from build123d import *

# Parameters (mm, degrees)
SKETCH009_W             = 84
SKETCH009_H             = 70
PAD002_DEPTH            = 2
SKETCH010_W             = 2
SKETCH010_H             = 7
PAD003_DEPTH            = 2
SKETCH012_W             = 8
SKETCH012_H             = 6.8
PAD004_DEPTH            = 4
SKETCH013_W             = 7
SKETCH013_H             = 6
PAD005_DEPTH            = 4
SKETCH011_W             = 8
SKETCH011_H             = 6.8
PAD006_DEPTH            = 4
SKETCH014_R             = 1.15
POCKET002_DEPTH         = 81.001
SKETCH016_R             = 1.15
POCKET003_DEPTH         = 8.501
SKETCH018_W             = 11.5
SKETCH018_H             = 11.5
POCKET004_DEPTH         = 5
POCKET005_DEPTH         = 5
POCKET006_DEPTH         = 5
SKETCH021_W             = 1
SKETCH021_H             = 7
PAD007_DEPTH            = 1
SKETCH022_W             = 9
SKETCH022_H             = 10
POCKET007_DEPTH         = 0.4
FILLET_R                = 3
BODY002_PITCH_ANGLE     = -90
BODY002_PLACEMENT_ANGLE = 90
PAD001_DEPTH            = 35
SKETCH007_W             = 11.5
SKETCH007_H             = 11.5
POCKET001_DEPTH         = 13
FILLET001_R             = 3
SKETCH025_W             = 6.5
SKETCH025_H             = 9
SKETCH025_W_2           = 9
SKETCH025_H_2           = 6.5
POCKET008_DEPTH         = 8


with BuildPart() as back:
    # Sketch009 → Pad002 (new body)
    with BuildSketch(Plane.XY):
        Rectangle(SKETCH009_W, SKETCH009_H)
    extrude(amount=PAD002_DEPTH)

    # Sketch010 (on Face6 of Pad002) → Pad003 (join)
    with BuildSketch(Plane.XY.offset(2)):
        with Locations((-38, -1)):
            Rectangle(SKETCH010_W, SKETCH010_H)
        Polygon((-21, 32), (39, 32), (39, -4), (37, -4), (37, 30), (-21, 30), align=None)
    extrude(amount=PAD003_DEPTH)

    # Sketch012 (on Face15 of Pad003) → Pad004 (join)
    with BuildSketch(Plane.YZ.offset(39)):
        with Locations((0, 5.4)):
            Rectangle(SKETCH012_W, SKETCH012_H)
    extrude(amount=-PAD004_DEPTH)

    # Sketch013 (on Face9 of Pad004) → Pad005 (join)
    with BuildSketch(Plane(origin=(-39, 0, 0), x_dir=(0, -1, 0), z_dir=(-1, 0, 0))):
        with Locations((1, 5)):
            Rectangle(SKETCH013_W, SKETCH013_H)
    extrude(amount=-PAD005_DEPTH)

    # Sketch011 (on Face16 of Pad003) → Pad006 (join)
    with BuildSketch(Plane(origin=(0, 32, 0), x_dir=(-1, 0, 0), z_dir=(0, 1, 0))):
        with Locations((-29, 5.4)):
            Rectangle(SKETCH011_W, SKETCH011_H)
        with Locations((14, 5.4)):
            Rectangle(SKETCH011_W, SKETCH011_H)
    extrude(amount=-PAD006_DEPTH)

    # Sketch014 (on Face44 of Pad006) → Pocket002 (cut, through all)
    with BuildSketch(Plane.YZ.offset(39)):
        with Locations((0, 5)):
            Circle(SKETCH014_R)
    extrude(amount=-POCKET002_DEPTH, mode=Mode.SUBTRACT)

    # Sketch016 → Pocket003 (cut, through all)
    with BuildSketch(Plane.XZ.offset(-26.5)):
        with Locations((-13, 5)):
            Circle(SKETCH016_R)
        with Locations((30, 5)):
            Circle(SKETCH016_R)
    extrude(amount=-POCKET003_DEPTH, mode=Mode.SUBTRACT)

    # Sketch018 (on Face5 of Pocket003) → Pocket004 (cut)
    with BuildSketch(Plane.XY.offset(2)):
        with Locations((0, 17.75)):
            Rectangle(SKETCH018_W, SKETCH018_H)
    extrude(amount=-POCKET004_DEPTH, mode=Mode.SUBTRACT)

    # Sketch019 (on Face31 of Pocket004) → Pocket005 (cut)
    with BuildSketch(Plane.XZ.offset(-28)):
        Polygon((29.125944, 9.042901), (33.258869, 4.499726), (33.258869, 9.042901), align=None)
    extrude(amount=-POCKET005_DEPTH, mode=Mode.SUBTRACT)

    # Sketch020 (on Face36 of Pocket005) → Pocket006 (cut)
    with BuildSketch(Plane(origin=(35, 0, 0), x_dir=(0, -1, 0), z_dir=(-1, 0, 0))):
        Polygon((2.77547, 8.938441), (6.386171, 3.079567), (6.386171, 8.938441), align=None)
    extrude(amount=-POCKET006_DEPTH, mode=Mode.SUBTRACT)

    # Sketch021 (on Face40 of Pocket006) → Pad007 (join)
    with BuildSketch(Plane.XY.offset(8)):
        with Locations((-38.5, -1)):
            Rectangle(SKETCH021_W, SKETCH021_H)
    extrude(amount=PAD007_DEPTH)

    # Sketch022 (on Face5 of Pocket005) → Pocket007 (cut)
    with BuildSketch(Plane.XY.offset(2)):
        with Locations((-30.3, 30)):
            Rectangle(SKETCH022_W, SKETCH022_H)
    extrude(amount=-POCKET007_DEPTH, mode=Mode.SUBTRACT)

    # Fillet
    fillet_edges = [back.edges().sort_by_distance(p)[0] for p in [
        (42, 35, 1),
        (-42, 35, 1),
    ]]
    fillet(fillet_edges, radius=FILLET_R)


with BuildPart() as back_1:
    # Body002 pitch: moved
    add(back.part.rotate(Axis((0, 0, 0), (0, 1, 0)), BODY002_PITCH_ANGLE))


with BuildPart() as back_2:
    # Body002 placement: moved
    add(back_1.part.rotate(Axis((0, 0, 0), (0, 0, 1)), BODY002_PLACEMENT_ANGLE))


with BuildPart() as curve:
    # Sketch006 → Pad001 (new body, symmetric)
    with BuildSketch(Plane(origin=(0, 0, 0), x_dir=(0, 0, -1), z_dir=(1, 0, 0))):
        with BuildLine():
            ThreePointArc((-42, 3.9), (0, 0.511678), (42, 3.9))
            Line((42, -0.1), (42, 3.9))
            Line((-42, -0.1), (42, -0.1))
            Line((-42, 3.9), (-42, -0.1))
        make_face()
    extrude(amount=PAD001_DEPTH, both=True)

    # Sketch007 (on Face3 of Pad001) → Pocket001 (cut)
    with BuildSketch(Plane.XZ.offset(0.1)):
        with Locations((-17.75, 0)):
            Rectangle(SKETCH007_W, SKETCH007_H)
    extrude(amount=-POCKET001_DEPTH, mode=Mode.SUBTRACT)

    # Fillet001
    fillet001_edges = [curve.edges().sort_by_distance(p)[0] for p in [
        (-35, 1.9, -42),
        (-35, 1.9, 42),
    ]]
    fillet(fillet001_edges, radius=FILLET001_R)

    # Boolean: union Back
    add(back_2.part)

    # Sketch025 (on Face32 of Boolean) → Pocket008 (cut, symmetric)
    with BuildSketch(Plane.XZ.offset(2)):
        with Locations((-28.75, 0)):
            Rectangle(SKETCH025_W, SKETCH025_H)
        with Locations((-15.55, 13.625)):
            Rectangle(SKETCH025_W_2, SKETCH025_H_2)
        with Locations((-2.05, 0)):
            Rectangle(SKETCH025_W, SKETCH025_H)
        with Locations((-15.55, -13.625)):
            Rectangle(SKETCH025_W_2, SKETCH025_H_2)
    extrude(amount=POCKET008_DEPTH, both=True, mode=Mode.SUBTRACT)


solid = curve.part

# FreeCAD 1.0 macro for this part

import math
import FreeCAD as App
import Part
import Sketcher

V = App.Vector


def edges_at(feature, points):
    """Names of the edges that pass closest to the given points."""
    edges = feature.Shape.Edges
    near = lambda p: min(range(len(edges)), key=lambda i: edges[i].distToShape(Part.Vertex(*p))[0])
    return sorted({f"Edge{near(p) + 1}" for p in points})

doc = App.newDocument("Part")
body = doc.addObject("PartDesign::Body", "Body")

sketch1 = body.newObject("Sketcher::SketchObject", "Sketch")
sketch1.AttachmentSupport = (doc.getObject("XY_Plane"), [""])
sketch1.MapMode = "FlatFace"
sketch1.addGeometry(Part.LineSegment(V(-42, 35, 0), V(-42, -35, 0)), False)
sketch1.addGeometry(Part.LineSegment(V(-42, -35, 0), V(42, -35, 0)), False)
sketch1.addGeometry(Part.LineSegment(V(42, -35, 0), V(42, 35, 0)), False)
sketch1.addGeometry(Part.LineSegment(V(42, 35, 0), V(-42, 35, 0)), False)
sketch1.addConstraint(Sketcher.Constraint("Coincident", 0, 2, 1, 1))
sketch1.addConstraint(Sketcher.Constraint("Coincident", 1, 2, 2, 1))
sketch1.addConstraint(Sketcher.Constraint("Coincident", 2, 2, 3, 1))
sketch1.addConstraint(Sketcher.Constraint("Coincident", 3, 2, 0, 1))
sketch1.addConstraint(Sketcher.Constraint("Vertical", 0))
sketch1.addConstraint(Sketcher.Constraint("Horizontal", 1))
sketch1.addConstraint(Sketcher.Constraint("Vertical", 2))
sketch1.addConstraint(Sketcher.Constraint("Horizontal", 3))
sketch1.addConstraint(Sketcher.Constraint("Symmetric", 0, 2, 2, 2, -1, 1))
sketch1.addConstraint(Sketcher.Constraint("DistanceX", 1, 1, 1, 2, 84.0))
sketch1.addConstraint(Sketcher.Constraint("DistanceY", 0, 2, 0, 1, 70.0))
pad1 = body.newObject("PartDesign::Pad", "Pad")
pad1.Profile = sketch1
pad1.Length = 2

sketch2 = body.newObject("Sketcher::SketchObject", "Sketch001")
sketch2.AttachmentSupport = (doc.getObject("XY_Plane"), [""])
sketch2.MapMode = "FlatFace"
sketch2.AttachmentOffset = App.Placement(V(0, 0, 2), App.Rotation())
sketch2.addGeometry(Part.LineSegment(V(-39, 2.5, 0), V(-39, -4.5, 0)), False)
sketch2.addGeometry(Part.LineSegment(V(-39, -4.5, 0), V(-37, -4.5, 0)), False)
sketch2.addGeometry(Part.LineSegment(V(-37, -4.5, 0), V(-37, 2.5, 0)), False)
sketch2.addGeometry(Part.LineSegment(V(-37, 2.5, 0), V(-39, 2.5, 0)), False)
sketch2.addGeometry(Part.LineSegment(V(39, 32, 0), V(-21, 32, 0)), False)
sketch2.addGeometry(Part.LineSegment(V(-21, 32, 0), V(-21, 30, 0)), False)
sketch2.addGeometry(Part.LineSegment(V(-21, 30, 0), V(37, 30, 0)), False)
sketch2.addGeometry(Part.LineSegment(V(37, 30, 0), V(37, -4, 0)), False)
sketch2.addGeometry(Part.LineSegment(V(37, -4, 0), V(39, -4, 0)), False)
sketch2.addGeometry(Part.LineSegment(V(39, -4, 0), V(39, 32, 0)), False)
sketch2.addConstraint(Sketcher.Constraint("Coincident", 0, 2, 1, 1))
sketch2.addConstraint(Sketcher.Constraint("Coincident", 1, 2, 2, 1))
sketch2.addConstraint(Sketcher.Constraint("Coincident", 2, 2, 3, 1))
sketch2.addConstraint(Sketcher.Constraint("Coincident", 3, 2, 0, 1))
sketch2.addConstraint(Sketcher.Constraint("Coincident", 4, 2, 5, 1))
sketch2.addConstraint(Sketcher.Constraint("Coincident", 5, 2, 6, 1))
sketch2.addConstraint(Sketcher.Constraint("Coincident", 6, 2, 7, 1))
sketch2.addConstraint(Sketcher.Constraint("Coincident", 7, 2, 8, 1))
sketch2.addConstraint(Sketcher.Constraint("Coincident", 8, 2, 9, 1))
sketch2.addConstraint(Sketcher.Constraint("Coincident", 9, 2, 4, 1))
sketch2.addConstraint(Sketcher.Constraint("Vertical", 0))
sketch2.addConstraint(Sketcher.Constraint("Horizontal", 1))
sketch2.addConstraint(Sketcher.Constraint("Vertical", 2))
sketch2.addConstraint(Sketcher.Constraint("Horizontal", 3))
sketch2.addConstraint(Sketcher.Constraint("Horizontal", 4))
sketch2.addConstraint(Sketcher.Constraint("Vertical", 5))
sketch2.addConstraint(Sketcher.Constraint("Horizontal", 6))
sketch2.addConstraint(Sketcher.Constraint("Vertical", 7))
sketch2.addConstraint(Sketcher.Constraint("Horizontal", 8))
sketch2.addConstraint(Sketcher.Constraint("Vertical", 9))
sketch2.addConstraint(Sketcher.Constraint("Equal", 3, 8))
sketch2.addConstraint(Sketcher.Constraint("Equal", 8, 5))
sketch2.addConstraint(Sketcher.Constraint("DistanceX", 1, 1, 1, 2, 2.0))
sketch2.addConstraint(Sketcher.Constraint("DistanceX", 4, 2, 4, 1, 60.0))
sketch2.addConstraint(Sketcher.Constraint("DistanceY", 0, 2, 0, 1, 7.0))
sketch2.addConstraint(Sketcher.Constraint("DistanceY", 7, 2, 7, 1, 34.0))
sketch2.addConstraint(Sketcher.Constraint("DistanceX", 0, 2, -1, 1, 39.0))
sketch2.addConstraint(Sketcher.Constraint("DistanceX", 4, 2, -1, 1, 21.0))
sketch2.addConstraint(Sketcher.Constraint("DistanceY", -1, 1, 4, 2, 32.0))
sketch2.addConstraint(Sketcher.Constraint("DistanceY", 0, 2, -1, 1, 4.5))
pad2 = body.newObject("PartDesign::Pad", "Pad001")
pad2.Profile = sketch2
pad2.Length = 2

sketch3 = body.newObject("Sketcher::SketchObject", "Sketch002")
sketch3.AttachmentSupport = (doc.getObject("YZ_Plane"), [""])
sketch3.MapMode = "FlatFace"
sketch3.AttachmentOffset = App.Placement(V(0, 0, 39), App.Rotation())
sketch3.addGeometry(Part.LineSegment(V(-4, 9, 0), V(-4, 2, 0)), False)
sketch3.addGeometry(Part.LineSegment(V(-4, 2, 0), V(4, 2, 0)), False)
sketch3.addGeometry(Part.LineSegment(V(4, 2, 0), V(4, 9, 0)), False)
sketch3.addGeometry(Part.LineSegment(V(4, 9, 0), V(-4, 9, 0)), False)
sketch3.addConstraint(Sketcher.Constraint("Coincident", 0, 2, 1, 1))
sketch3.addConstraint(Sketcher.Constraint("Coincident", 1, 2, 2, 1))
sketch3.addConstraint(Sketcher.Constraint("Coincident", 2, 2, 3, 1))
sketch3.addConstraint(Sketcher.Constraint("Coincident", 3, 2, 0, 1))
sketch3.addConstraint(Sketcher.Constraint("Vertical", 0))
sketch3.addConstraint(Sketcher.Constraint("Horizontal", 1))
sketch3.addConstraint(Sketcher.Constraint("Vertical", 2))
sketch3.addConstraint(Sketcher.Constraint("Horizontal", 3))
sketch3.addConstraint(Sketcher.Constraint("DistanceX", 1, 1, 1, 2, 8.0))
sketch3.addConstraint(Sketcher.Constraint("DistanceY", 0, 2, 0, 1, 6.8))
sketch3.addConstraint(Sketcher.Constraint("DistanceX", 0, 2, -1, 1, 4.0))
sketch3.addConstraint(Sketcher.Constraint("DistanceY", -1, 1, 0, 2, 2.0))
pad3 = body.newObject("PartDesign::Pad", "Pad002")
pad3.Profile = sketch3
pad3.Length = 4
pad3.Reversed = True

sketch4 = body.newObject("Sketcher::SketchObject", "Sketch003")
sketch4.AttachmentSupport = (doc.getObject("YZ_Plane"), [""])
sketch4.MapMode = "FlatFace"
sketch4.AttachmentOffset = App.Placement(V(0, 0, -39), App.Rotation())
sketch4.addGeometry(Part.LineSegment(V(2, 8, 0), V(2, 2, 0)), False)
sketch4.addGeometry(Part.LineSegment(V(2, 2, 0), V(-4, 2, 0)), False)
sketch4.addGeometry(Part.LineSegment(V(-4, 2, 0), V(-4, 8, 0)), False)
sketch4.addGeometry(Part.LineSegment(V(-4, 8, 0), V(2, 8, 0)), False)
sketch4.addConstraint(Sketcher.Constraint("Coincident", 0, 2, 1, 1))
sketch4.addConstraint(Sketcher.Constraint("Coincident", 1, 2, 2, 1))
sketch4.addConstraint(Sketcher.Constraint("Coincident", 2, 2, 3, 1))
sketch4.addConstraint(Sketcher.Constraint("Coincident", 3, 2, 0, 1))
sketch4.addConstraint(Sketcher.Constraint("Vertical", 0))
sketch4.addConstraint(Sketcher.Constraint("Horizontal", 1))
sketch4.addConstraint(Sketcher.Constraint("Vertical", 2))
sketch4.addConstraint(Sketcher.Constraint("Horizontal", 3))
sketch4.addConstraint(Sketcher.Constraint("DistanceX", 1, 2, 1, 1, 7.0))
sketch4.addConstraint(Sketcher.Constraint("DistanceY", 0, 2, 0, 1, 6.0))
sketch4.addConstraint(Sketcher.Constraint("DistanceY", -1, 1, 0, 2, 2.0))
sketch4.addConstraint(Sketcher.Constraint("DistanceX", -1, 1, 0, 2, 2.5))
pad4 = body.newObject("PartDesign::Pad", "Pad003")
pad4.Profile = sketch4
pad4.Length = 4

sketch5 = body.newObject("Sketcher::SketchObject", "Sketch004")
sketch5.AttachmentSupport = (doc.getObject("XZ_Plane"), [""])
sketch5.MapMode = "FlatFace"
sketch5.AttachmentOffset = App.Placement(V(0, 0, -32), App.Rotation())
sketch5.addGeometry(Part.LineSegment(V(33, 9, 0), V(33, 2, 0)), False)
sketch5.addGeometry(Part.LineSegment(V(33, 2, 0), V(25, 2, 0)), False)
sketch5.addGeometry(Part.LineSegment(V(25, 2, 0), V(25, 9, 0)), False)
sketch5.addGeometry(Part.LineSegment(V(25, 9, 0), V(33, 9, 0)), False)
sketch5.addGeometry(Part.LineSegment(V(-10, 9, 0), V(-10, 2, 0)), False)
sketch5.addGeometry(Part.LineSegment(V(-10, 2, 0), V(-18, 2, 0)), False)
sketch5.addGeometry(Part.LineSegment(V(-18, 2, 0), V(-18, 9, 0)), False)
sketch5.addGeometry(Part.LineSegment(V(-18, 9, 0), V(-10, 9, 0)), False)
sketch5.addConstraint(Sketcher.Constraint("Coincident", 0, 2, 1, 1))
sketch5.addConstraint(Sketcher.Constraint("Coincident", 1, 2, 2, 1))
sketch5.addConstraint(Sketcher.Constraint("Coincident", 2, 2, 3, 1))
sketch5.addConstraint(Sketcher.Constraint("Coincident", 3, 2, 0, 1))
sketch5.addConstraint(Sketcher.Constraint("Coincident", 4, 2, 5, 1))
sketch5.addConstraint(Sketcher.Constraint("Coincident", 5, 2, 6, 1))
sketch5.addConstraint(Sketcher.Constraint("Coincident", 6, 2, 7, 1))
sketch5.addConstraint(Sketcher.Constraint("Coincident", 7, 2, 4, 1))
sketch5.addConstraint(Sketcher.Constraint("Vertical", 0))
sketch5.addConstraint(Sketcher.Constraint("Horizontal", 1))
sketch5.addConstraint(Sketcher.Constraint("Vertical", 2))
sketch5.addConstraint(Sketcher.Constraint("Horizontal", 3))
sketch5.addConstraint(Sketcher.Constraint("Vertical", 4))
sketch5.addConstraint(Sketcher.Constraint("Horizontal", 5))
sketch5.addConstraint(Sketcher.Constraint("Vertical", 6))
sketch5.addConstraint(Sketcher.Constraint("Horizontal", 7))
sketch5.addConstraint(Sketcher.Constraint("Horizontal", 1, 2, 4, 2))
sketch5.addConstraint(Sketcher.Constraint("Horizontal", 3, 2, 6, 2))
sketch5.addConstraint(Sketcher.Constraint("Equal", 3, 5))
sketch5.addConstraint(Sketcher.Constraint("DistanceX", 1, 2, 1, 1, 8.0))
sketch5.addConstraint(Sketcher.Constraint("DistanceY", 0, 2, 0, 1, 6.8))
sketch5.addConstraint(Sketcher.Constraint("DistanceX", -1, 1, 0, 2, 33.0))
sketch5.addConstraint(Sketcher.Constraint("DistanceY", -1, 1, 0, 2, 2.0))
sketch5.addConstraint(Sketcher.Constraint("DistanceX", 4, 2, -1, 1, 10.0))
pad5 = body.newObject("PartDesign::Pad", "Pad004")
pad5.Profile = sketch5
pad5.Length = 4

sketch6 = body.newObject("Sketcher::SketchObject", "Sketch005")
sketch6.AttachmentSupport = (doc.getObject("YZ_Plane"), [""])
sketch6.MapMode = "FlatFace"
sketch6.AttachmentOffset = App.Placement(V(0, 0, 39), App.Rotation())
sketch6.addGeometry(Part.Circle(V(0, 5, 0), V(0, 0, 1), 1.1), False)
sketch6.addConstraint(Sketcher.Constraint("PointOnObject", 0, 3, -2))
sketch6.addConstraint(Sketcher.Constraint("Diameter", 0, 2.3))
sketch6.addConstraint(Sketcher.Constraint("DistanceY", -1, 1, 0, 3, 5.0))
pocket1 = body.newObject("PartDesign::Pocket", "Pocket")
pocket1.Profile = sketch6
pocket1.Type = "ThroughAll"

sketch7 = body.newObject("Sketcher::SketchObject", "Sketch006")
sketch7.AttachmentSupport = (doc.getObject("XZ_Plane"), [""])
sketch7.MapMode = "FlatFace"
sketch7.AttachmentOffset = App.Placement(V(0, 0, -26.5), App.Rotation())
sketch7.addGeometry(Part.Circle(V(-13, 5, 0), V(0, 0, 1), 1.1), False)
sketch7.addGeometry(Part.Circle(V(30, 5, 0), V(0, 0, 1), 1.1), False)
sketch7.addConstraint(Sketcher.Constraint("Equal", 0, 1))
sketch7.addConstraint(Sketcher.Constraint("Horizontal", 0, 3, 1, 3))
sketch7.addConstraint(Sketcher.Constraint("Diameter", 0, 2.3))
sketch7.addConstraint(Sketcher.Constraint("DistanceX", 0, 3, -1, 1, 13.0))
sketch7.addConstraint(Sketcher.Constraint("DistanceY", -1, 1, 0, 3, 5.0))
sketch7.addConstraint(Sketcher.Constraint("DistanceX", -1, 1, 1, 3, 30.0))
pocket2 = body.newObject("PartDesign::Pocket", "Pocket001")
pocket2.Profile = sketch7
pocket2.Type = "ThroughAll"

sketch8 = body.newObject("Sketcher::SketchObject", "Sketch007")
sketch8.AttachmentSupport = (doc.getObject("XY_Plane"), [""])
sketch8.MapMode = "FlatFace"
sketch8.AttachmentOffset = App.Placement(V(0, 0, 2), App.Rotation())
sketch8.addGeometry(Part.LineSegment(V(-6, 24, 0), V(-6, 12, 0)), False)
sketch8.addGeometry(Part.LineSegment(V(-6, 12, 0), V(6, 12, 0)), False)
sketch8.addGeometry(Part.LineSegment(V(6, 12, 0), V(6, 24, 0)), False)
sketch8.addGeometry(Part.LineSegment(V(6, 24, 0), V(-6, 24, 0)), False)
sketch8.addConstraint(Sketcher.Constraint("Coincident", 0, 2, 1, 1))
sketch8.addConstraint(Sketcher.Constraint("Coincident", 1, 2, 2, 1))
sketch8.addConstraint(Sketcher.Constraint("Coincident", 2, 2, 3, 1))
sketch8.addConstraint(Sketcher.Constraint("Coincident", 3, 2, 0, 1))
sketch8.addConstraint(Sketcher.Constraint("Vertical", 0))
sketch8.addConstraint(Sketcher.Constraint("Horizontal", 1))
sketch8.addConstraint(Sketcher.Constraint("Vertical", 2))
sketch8.addConstraint(Sketcher.Constraint("Horizontal", 3))
sketch8.addConstraint(Sketcher.Constraint("Equal", 3, 0))
sketch8.addConstraint(Sketcher.Constraint("DistanceX", 1, 1, 1, 2, 11.5))
sketch8.addConstraint(Sketcher.Constraint("DistanceY", -1, 1, 0, 2, 12.0))
sketch8.addConstraint(Sketcher.Constraint("DistanceX", 0, 2, -1, 1, 5.75))
pocket3 = body.newObject("PartDesign::Pocket", "Pocket002")
pocket3.Profile = sketch8
pocket3.Length = 5

sketch9 = body.newObject("Sketcher::SketchObject", "Sketch008")
sketch9.AttachmentSupport = (doc.getObject("XZ_Plane"), [""])
sketch9.MapMode = "FlatFace"
sketch9.AttachmentOffset = App.Placement(V(0, 0, -28), App.Rotation())
sketch9.addGeometry(Part.LineSegment(V(29.1, 9, 0), V(33.3, 4.5, 0)), False)
sketch9.addGeometry(Part.LineSegment(V(33.3, 4.5, 0), V(33.3, 9, 0)), False)
sketch9.addGeometry(Part.LineSegment(V(33.3, 9, 0), V(29.1, 9, 0)), False)
sketch9.addConstraint(Sketcher.Constraint("Coincident", 0, 2, 1, 1))
sketch9.addConstraint(Sketcher.Constraint("Coincident", 1, 2, 2, 1))
sketch9.addConstraint(Sketcher.Constraint("Coincident", 2, 2, 0, 1))
sketch9.addConstraint(Sketcher.Constraint("Vertical", 1))
sketch9.addConstraint(Sketcher.Constraint("Horizontal", 2))
sketch9.addConstraint(Sketcher.Constraint("DistanceY", -1, 1, 1, 2, 9.042901))
sketch9.addConstraint(Sketcher.Constraint("DistanceX", 2, 2, 2, 1, 4.132925))
sketch9.addConstraint(Sketcher.Constraint("DistanceY", 1, 1, 1, 2, 4.543175))
sketch9.addConstraint(Sketcher.Constraint("DistanceX", -1, 1, 0, 2, 33.258869))
pocket4 = body.newObject("PartDesign::Pocket", "Pocket003")
pocket4.Profile = sketch9
pocket4.Length = 5

sketch10 = body.newObject("Sketcher::SketchObject", "Sketch009")
sketch10.AttachmentSupport = (doc.getObject("YZ_Plane"), [""])
sketch10.MapMode = "FlatFace"
sketch10.AttachmentOffset = App.Placement(V(0, 0, 35), App.Rotation())
sketch10.addGeometry(Part.LineSegment(V(-2.8, 8.9, 0), V(-6.4, 3.1, 0)), False)
sketch10.addGeometry(Part.LineSegment(V(-6.4, 3.1, 0), V(-6.4, 8.9, 0)), False)
sketch10.addGeometry(Part.LineSegment(V(-6.4, 8.9, 0), V(-2.8, 8.9, 0)), False)
sketch10.addConstraint(Sketcher.Constraint("Coincident", 0, 2, 1, 1))
sketch10.addConstraint(Sketcher.Constraint("Coincident", 1, 2, 2, 1))
sketch10.addConstraint(Sketcher.Constraint("Coincident", 2, 2, 0, 1))
sketch10.addConstraint(Sketcher.Constraint("Vertical", 1))
sketch10.addConstraint(Sketcher.Constraint("Horizontal", 2))
sketch10.addConstraint(Sketcher.Constraint("DistanceX", 2, 1, 2, 2, 3.610701))
sketch10.addConstraint(Sketcher.Constraint("Distance", 0, 6.882119))
sketch10.addConstraint(Sketcher.Constraint("DistanceX", 0, 2, -1, 1, 6.386171))
sketch10.addConstraint(Sketcher.Constraint("DistanceY", -1, 1, 1, 2, 8.938441))
pocket5 = body.newObject("PartDesign::Pocket", "Pocket004")
pocket5.Profile = sketch10
pocket5.Length = 5
pocket5.Reversed = True

sketch11 = body.newObject("Sketcher::SketchObject", "Sketch010")
sketch11.AttachmentSupport = (doc.getObject("XY_Plane"), [""])
sketch11.MapMode = "FlatFace"
sketch11.AttachmentOffset = App.Placement(V(0, 0, 8), App.Rotation())
sketch11.addGeometry(Part.LineSegment(V(-39, 2.5, 0), V(-39, -4.5, 0)), False)
sketch11.addGeometry(Part.LineSegment(V(-39, -4.5, 0), V(-38, -4.5, 0)), False)
sketch11.addGeometry(Part.LineSegment(V(-38, -4.5, 0), V(-38, 2.5, 0)), False)
sketch11.addGeometry(Part.LineSegment(V(-38, 2.5, 0), V(-39, 2.5, 0)), False)
sketch11.addConstraint(Sketcher.Constraint("Coincident", 0, 2, 1, 1))
sketch11.addConstraint(Sketcher.Constraint("Coincident", 1, 2, 2, 1))
sketch11.addConstraint(Sketcher.Constraint("Coincident", 2, 2, 3, 1))
sketch11.addConstraint(Sketcher.Constraint("Coincident", 3, 2, 0, 1))
sketch11.addConstraint(Sketcher.Constraint("Vertical", 0))
sketch11.addConstraint(Sketcher.Constraint("Horizontal", 1))
sketch11.addConstraint(Sketcher.Constraint("Vertical", 2))
sketch11.addConstraint(Sketcher.Constraint("Horizontal", 3))
sketch11.addConstraint(Sketcher.Constraint("DistanceX", 1, 1, 1, 2, 1.0))
sketch11.addConstraint(Sketcher.Constraint("DistanceY", 0, 2, 0, 1, 7.0))
sketch11.addConstraint(Sketcher.Constraint("DistanceX", 0, 2, -1, 1, 39.0))
sketch11.addConstraint(Sketcher.Constraint("DistanceY", 0, 2, -1, 1, 4.5))
pad6 = body.newObject("PartDesign::Pad", "Pad005")
pad6.Profile = sketch11
pad6.Length = 1

sketch12 = body.newObject("Sketcher::SketchObject", "Sketch011")
sketch12.AttachmentSupport = (doc.getObject("XY_Plane"), [""])
sketch12.MapMode = "FlatFace"
sketch12.AttachmentOffset = App.Placement(V(0, 0, 2), App.Rotation())
sketch12.addGeometry(Part.LineSegment(V(-35, 35, 0), V(-35, 25, 0)), False)
sketch12.addGeometry(Part.LineSegment(V(-35, 25, 0), V(-26, 25, 0)), False)
sketch12.addGeometry(Part.LineSegment(V(-26, 25, 0), V(-26, 35, 0)), False)
sketch12.addGeometry(Part.LineSegment(V(-26, 35, 0), V(-35, 35, 0)), False)
sketch12.addConstraint(Sketcher.Constraint("Coincident", 0, 2, 1, 1))
sketch12.addConstraint(Sketcher.Constraint("Coincident", 1, 2, 2, 1))
sketch12.addConstraint(Sketcher.Constraint("Coincident", 2, 2, 3, 1))
sketch12.addConstraint(Sketcher.Constraint("Coincident", 3, 2, 0, 1))
sketch12.addConstraint(Sketcher.Constraint("Vertical", 0))
sketch12.addConstraint(Sketcher.Constraint("Horizontal", 1))
sketch12.addConstraint(Sketcher.Constraint("Vertical", 2))
sketch12.addConstraint(Sketcher.Constraint("Horizontal", 3))
sketch12.addConstraint(Sketcher.Constraint("DistanceX", 1, 1, 1, 2, 9.0))
sketch12.addConstraint(Sketcher.Constraint("DistanceY", 0, 2, 0, 1, 10.0))
sketch12.addConstraint(Sketcher.Constraint("DistanceY", -1, 1, 0, 2, 25.0))
sketch12.addConstraint(Sketcher.Constraint("DistanceX", 0, 2, -1, 1, 34.8))
pocket6 = body.newObject("PartDesign::Pocket", "Pocket005")
pocket6.Profile = sketch12
pocket6.Length = 0.4
doc.recompute()

fillet = body.newObject("PartDesign::Fillet", "Fillet")
fillet.Base = (pocket6, edges_at(pocket6, [(42, 35, 1), (-42, 35, 1)]))
fillet.Radius = 3
body2 = doc.addObject("PartDesign::Body", "Body001")
doc.recompute()

body.Placement = App.Placement(V(0, 0, 0), App.Rotation(V(0, 1, 0), 270))
boolean = body2.newObject("PartDesign::Boolean", "Boolean")
boolean.Type = "Fuse"
boolean.addObjects([body])
body3 = doc.addObject("PartDesign::Body", "Body002")
doc.recompute()

body2.Placement = App.Placement(V(0, 0, 0), App.Rotation(V(0, 0, 1), 90))
boolean2 = body3.newObject("PartDesign::Boolean", "Boolean001")
boolean2.Type = "Fuse"
boolean2.addObjects([body2])
body4 = doc.addObject("PartDesign::Body", "Body003")

sketch13 = body4.newObject("Sketcher::SketchObject", "Sketch012")
sketch13.AttachmentSupport = (doc.getObject("YZ_Plane003"), [""])
sketch13.MapMode = "FlatFace"
sketch13.addGeometry(Part.ArcOfCircle(Part.Circle(V(262.5, 0, 0), V(0, 0, 1), 262), math.radians(170.78), math.radians(189.22)), False)
sketch13.addGeometry(Part.LineSegment(V(3.9, 42, 0), V(-0.1, 42, 0)), False)
sketch13.addGeometry(Part.LineSegment(V(-0.1, 42, 0), V(-0.1, -42, 0)), False)
sketch13.addGeometry(Part.LineSegment(V(-0.1, -42, 0), V(3.9, -42, 0)), False)
sketch13.addConstraint(Sketcher.Constraint("Coincident", 0, 1, 1, 1))
sketch13.addConstraint(Sketcher.Constraint("Coincident", 1, 2, 2, 1))
sketch13.addConstraint(Sketcher.Constraint("Coincident", 2, 2, 3, 1))
sketch13.addConstraint(Sketcher.Constraint("Coincident", 3, 2, 0, 2))
sketch13.addConstraint(Sketcher.Constraint("Horizontal", 1))
sketch13.addConstraint(Sketcher.Constraint("Vertical", 2))
sketch13.addConstraint(Sketcher.Constraint("Horizontal", 3))
sketch13.addConstraint(Sketcher.Constraint("Symmetric", 0, 1, 3, 2, -1))
sketch13.addConstraint(Sketcher.Constraint("Radius", 0, 262.0))
sketch13.addConstraint(Sketcher.Constraint("DistanceX", 1, 2, 1, 1, 4.0))
sketch13.addConstraint(Sketcher.Constraint("DistanceY", 2, 2, 2, 1, 84.0))
sketch13.addConstraint(Sketcher.Constraint("DistanceX", -1, 1, 0, 1, 3.9))
pad7 = body4.newObject("PartDesign::Pad", "Pad006")
pad7.Profile = sketch13
pad7.Length = 70
pad7.Midplane = True

sketch14 = body4.newObject("Sketcher::SketchObject", "Sketch013")
sketch14.AttachmentSupport = (doc.getObject("XZ_Plane003"), [""])
sketch14.MapMode = "FlatFace"
sketch14.AttachmentOffset = App.Placement(V(0, 0, 0.1), App.Rotation())
sketch14.addGeometry(Part.LineSegment(V(-24, 6, 0), V(-24, -6, 0)), False)
sketch14.addGeometry(Part.LineSegment(V(-24, -6, 0), V(-12, -6, 0)), False)
sketch14.addGeometry(Part.LineSegment(V(-12, -6, 0), V(-12, 6, 0)), False)
sketch14.addGeometry(Part.LineSegment(V(-12, 6, 0), V(-24, 6, 0)), False)
sketch14.addConstraint(Sketcher.Constraint("Coincident", 0, 2, 1, 1))
sketch14.addConstraint(Sketcher.Constraint("Coincident", 1, 2, 2, 1))
sketch14.addConstraint(Sketcher.Constraint("Coincident", 2, 2, 3, 1))
sketch14.addConstraint(Sketcher.Constraint("Coincident", 3, 2, 0, 1))
sketch14.addConstraint(Sketcher.Constraint("Vertical", 0))
sketch14.addConstraint(Sketcher.Constraint("Horizontal", 1))
sketch14.addConstraint(Sketcher.Constraint("Vertical", 2))
sketch14.addConstraint(Sketcher.Constraint("Horizontal", 3))
sketch14.addConstraint(Sketcher.Constraint("Equal", 3, 0))
sketch14.addConstraint(Sketcher.Constraint("DistanceX", 1, 1, 1, 2, 11.5))
sketch14.addConstraint(Sketcher.Constraint("DistanceX", 1, 2, -1, 1, 12.0))
sketch14.addConstraint(Sketcher.Constraint("DistanceY", 0, 2, -1, 1, 5.75))
pocket7 = body4.newObject("PartDesign::Pocket", "Pocket006")
pocket7.Profile = sketch14
pocket7.Length = 13
doc.recompute()

fillet2 = body4.newObject("PartDesign::Fillet", "Fillet001")
fillet2.Base = (pocket7, edges_at(pocket7, [(-35, 1.9, -42), (-35, 1.9, 42)]))
fillet2.Radius = 3
doc.recompute()

boolean3 = body4.newObject("PartDesign::Boolean", "Boolean002")
boolean3.Type = "Fuse"
boolean3.addObjects([body3])

sketch15 = body4.newObject("Sketcher::SketchObject", "Sketch014")
sketch15.AttachmentSupport = (doc.getObject("XZ_Plane003"), [""])
sketch15.MapMode = "FlatFace"
sketch15.AttachmentOffset = App.Placement(V(0, 0, 2), App.Rotation())
sketch15.addGeometry(Part.LineSegment(V(-32, 4, 0), V(-32, -4, 0)), False)
sketch15.addGeometry(Part.LineSegment(V(-32, -4, 0), V(-26, -4, 0)), False)
sketch15.addGeometry(Part.LineSegment(V(-26, -4, 0), V(-26, 4, 0)), False)
sketch15.addGeometry(Part.LineSegment(V(-26, 4, 0), V(-32, 4, 0)), False)
sketch15.addGeometry(Part.LineSegment(V(-20, 17, 0), V(-20, 10, 0)), False)
sketch15.addGeometry(Part.LineSegment(V(-20, 10, 0), V(-11, 10, 0)), False)
sketch15.addGeometry(Part.LineSegment(V(-11, 10, 0), V(-11, 17, 0)), False)
sketch15.addGeometry(Part.LineSegment(V(-11, 17, 0), V(-20, 17, 0)), False)
sketch15.addGeometry(Part.LineSegment(V(-5, 4, 0), V(-5, -4, 0)), False)
sketch15.addGeometry(Part.LineSegment(V(-5, -4, 0), V(1, -4, 0)), False)
sketch15.addGeometry(Part.LineSegment(V(1, -4, 0), V(1, 4, 0)), False)
sketch15.addGeometry(Part.LineSegment(V(1, 4, 0), V(-5, 4, 0)), False)
sketch15.addGeometry(Part.LineSegment(V(-20, -10, 0), V(-20, -17, 0)), False)
sketch15.addGeometry(Part.LineSegment(V(-20, -17, 0), V(-11, -17, 0)), False)
sketch15.addGeometry(Part.LineSegment(V(-11, -17, 0), V(-11, -10, 0)), False)
sketch15.addGeometry(Part.LineSegment(V(-11, -10, 0), V(-20, -10, 0)), False)
sketch15.addConstraint(Sketcher.Constraint("Coincident", 0, 2, 1, 1))
sketch15.addConstraint(Sketcher.Constraint("Coincident", 1, 2, 2, 1))
sketch15.addConstraint(Sketcher.Constraint("Coincident", 2, 2, 3, 1))
sketch15.addConstraint(Sketcher.Constraint("Coincident", 3, 2, 0, 1))
sketch15.addConstraint(Sketcher.Constraint("Coincident", 4, 2, 5, 1))
sketch15.addConstraint(Sketcher.Constraint("Coincident", 5, 2, 6, 1))
sketch15.addConstraint(Sketcher.Constraint("Coincident", 6, 2, 7, 1))
sketch15.addConstraint(Sketcher.Constraint("Coincident", 7, 2, 4, 1))
sketch15.addConstraint(Sketcher.Constraint("Coincident", 8, 2, 9, 1))
sketch15.addConstraint(Sketcher.Constraint("Coincident", 9, 2, 10, 1))
sketch15.addConstraint(Sketcher.Constraint("Coincident", 10, 2, 11, 1))
sketch15.addConstraint(Sketcher.Constraint("Coincident", 11, 2, 8, 1))
sketch15.addConstraint(Sketcher.Constraint("Coincident", 12, 2, 13, 1))
sketch15.addConstraint(Sketcher.Constraint("Coincident", 13, 2, 14, 1))
sketch15.addConstraint(Sketcher.Constraint("Coincident", 14, 2, 15, 1))
sketch15.addConstraint(Sketcher.Constraint("Coincident", 15, 2, 12, 1))
sketch15.addConstraint(Sketcher.Constraint("Vertical", 0))
sketch15.addConstraint(Sketcher.Constraint("Horizontal", 1))
sketch15.addConstraint(Sketcher.Constraint("Vertical", 2))
sketch15.addConstraint(Sketcher.Constraint("Horizontal", 3))
sketch15.addConstraint(Sketcher.Constraint("Vertical", 4))
sketch15.addConstraint(Sketcher.Constraint("Horizontal", 5))
sketch15.addConstraint(Sketcher.Constraint("Vertical", 6))
sketch15.addConstraint(Sketcher.Constraint("Horizontal", 7))
sketch15.addConstraint(Sketcher.Constraint("Vertical", 8))
sketch15.addConstraint(Sketcher.Constraint("Horizontal", 9))
sketch15.addConstraint(Sketcher.Constraint("Vertical", 10))
sketch15.addConstraint(Sketcher.Constraint("Horizontal", 11))
sketch15.addConstraint(Sketcher.Constraint("Vertical", 12))
sketch15.addConstraint(Sketcher.Constraint("Horizontal", 13))
sketch15.addConstraint(Sketcher.Constraint("Vertical", 14))
sketch15.addConstraint(Sketcher.Constraint("Horizontal", 15))
sketch15.addConstraint(Sketcher.Constraint("Symmetric", 7, 2, 12, 2, -1))
sketch15.addConstraint(Sketcher.Constraint("Symmetric", 5, 2, 14, 2, -1))
sketch15.addConstraint(Sketcher.Constraint("Horizontal", 1, 2, 8, 2))
sketch15.addConstraint(Sketcher.Constraint("Horizontal", 3, 2, 10, 2))
sketch15.addConstraint(Sketcher.Constraint("Equal", 3, 9))
sketch15.addConstraint(Sketcher.Constraint("Equal", 15, 0))
sketch15.addConstraint(Sketcher.Constraint("Equal", 11, 4))
sketch15.addConstraint(Sketcher.Constraint("DistanceX", 5, 1, 5, 2, 9.0))
sketch15.addConstraint(Sketcher.Constraint("DistanceX", 1, 1, 1, 2, 6.5))
sketch15.addConstraint(Sketcher.Constraint("DistanceX", 0, 2, -1, 1, 32.0))
sketch15.addConstraint(Sketcher.Constraint("DistanceY", 0, 2, -1, 1, 4.5))
sketch15.addConstraint(Sketcher.Constraint("DistanceX", 8, 2, -1, 1, 5.3))
sketch15.addConstraint(Sketcher.Constraint("DistanceX", 4, 2, -1, 1, 20.05))
sketch15.addConstraint(Sketcher.Constraint("DistanceY", -1, 1, 4, 2, 10.375))
pocket8 = body4.newObject("PartDesign::Pocket", "Pocket007")
pocket8.Profile = sketch15
pocket8.Length = 16
pocket8.Midplane = True

doc.recompute()
